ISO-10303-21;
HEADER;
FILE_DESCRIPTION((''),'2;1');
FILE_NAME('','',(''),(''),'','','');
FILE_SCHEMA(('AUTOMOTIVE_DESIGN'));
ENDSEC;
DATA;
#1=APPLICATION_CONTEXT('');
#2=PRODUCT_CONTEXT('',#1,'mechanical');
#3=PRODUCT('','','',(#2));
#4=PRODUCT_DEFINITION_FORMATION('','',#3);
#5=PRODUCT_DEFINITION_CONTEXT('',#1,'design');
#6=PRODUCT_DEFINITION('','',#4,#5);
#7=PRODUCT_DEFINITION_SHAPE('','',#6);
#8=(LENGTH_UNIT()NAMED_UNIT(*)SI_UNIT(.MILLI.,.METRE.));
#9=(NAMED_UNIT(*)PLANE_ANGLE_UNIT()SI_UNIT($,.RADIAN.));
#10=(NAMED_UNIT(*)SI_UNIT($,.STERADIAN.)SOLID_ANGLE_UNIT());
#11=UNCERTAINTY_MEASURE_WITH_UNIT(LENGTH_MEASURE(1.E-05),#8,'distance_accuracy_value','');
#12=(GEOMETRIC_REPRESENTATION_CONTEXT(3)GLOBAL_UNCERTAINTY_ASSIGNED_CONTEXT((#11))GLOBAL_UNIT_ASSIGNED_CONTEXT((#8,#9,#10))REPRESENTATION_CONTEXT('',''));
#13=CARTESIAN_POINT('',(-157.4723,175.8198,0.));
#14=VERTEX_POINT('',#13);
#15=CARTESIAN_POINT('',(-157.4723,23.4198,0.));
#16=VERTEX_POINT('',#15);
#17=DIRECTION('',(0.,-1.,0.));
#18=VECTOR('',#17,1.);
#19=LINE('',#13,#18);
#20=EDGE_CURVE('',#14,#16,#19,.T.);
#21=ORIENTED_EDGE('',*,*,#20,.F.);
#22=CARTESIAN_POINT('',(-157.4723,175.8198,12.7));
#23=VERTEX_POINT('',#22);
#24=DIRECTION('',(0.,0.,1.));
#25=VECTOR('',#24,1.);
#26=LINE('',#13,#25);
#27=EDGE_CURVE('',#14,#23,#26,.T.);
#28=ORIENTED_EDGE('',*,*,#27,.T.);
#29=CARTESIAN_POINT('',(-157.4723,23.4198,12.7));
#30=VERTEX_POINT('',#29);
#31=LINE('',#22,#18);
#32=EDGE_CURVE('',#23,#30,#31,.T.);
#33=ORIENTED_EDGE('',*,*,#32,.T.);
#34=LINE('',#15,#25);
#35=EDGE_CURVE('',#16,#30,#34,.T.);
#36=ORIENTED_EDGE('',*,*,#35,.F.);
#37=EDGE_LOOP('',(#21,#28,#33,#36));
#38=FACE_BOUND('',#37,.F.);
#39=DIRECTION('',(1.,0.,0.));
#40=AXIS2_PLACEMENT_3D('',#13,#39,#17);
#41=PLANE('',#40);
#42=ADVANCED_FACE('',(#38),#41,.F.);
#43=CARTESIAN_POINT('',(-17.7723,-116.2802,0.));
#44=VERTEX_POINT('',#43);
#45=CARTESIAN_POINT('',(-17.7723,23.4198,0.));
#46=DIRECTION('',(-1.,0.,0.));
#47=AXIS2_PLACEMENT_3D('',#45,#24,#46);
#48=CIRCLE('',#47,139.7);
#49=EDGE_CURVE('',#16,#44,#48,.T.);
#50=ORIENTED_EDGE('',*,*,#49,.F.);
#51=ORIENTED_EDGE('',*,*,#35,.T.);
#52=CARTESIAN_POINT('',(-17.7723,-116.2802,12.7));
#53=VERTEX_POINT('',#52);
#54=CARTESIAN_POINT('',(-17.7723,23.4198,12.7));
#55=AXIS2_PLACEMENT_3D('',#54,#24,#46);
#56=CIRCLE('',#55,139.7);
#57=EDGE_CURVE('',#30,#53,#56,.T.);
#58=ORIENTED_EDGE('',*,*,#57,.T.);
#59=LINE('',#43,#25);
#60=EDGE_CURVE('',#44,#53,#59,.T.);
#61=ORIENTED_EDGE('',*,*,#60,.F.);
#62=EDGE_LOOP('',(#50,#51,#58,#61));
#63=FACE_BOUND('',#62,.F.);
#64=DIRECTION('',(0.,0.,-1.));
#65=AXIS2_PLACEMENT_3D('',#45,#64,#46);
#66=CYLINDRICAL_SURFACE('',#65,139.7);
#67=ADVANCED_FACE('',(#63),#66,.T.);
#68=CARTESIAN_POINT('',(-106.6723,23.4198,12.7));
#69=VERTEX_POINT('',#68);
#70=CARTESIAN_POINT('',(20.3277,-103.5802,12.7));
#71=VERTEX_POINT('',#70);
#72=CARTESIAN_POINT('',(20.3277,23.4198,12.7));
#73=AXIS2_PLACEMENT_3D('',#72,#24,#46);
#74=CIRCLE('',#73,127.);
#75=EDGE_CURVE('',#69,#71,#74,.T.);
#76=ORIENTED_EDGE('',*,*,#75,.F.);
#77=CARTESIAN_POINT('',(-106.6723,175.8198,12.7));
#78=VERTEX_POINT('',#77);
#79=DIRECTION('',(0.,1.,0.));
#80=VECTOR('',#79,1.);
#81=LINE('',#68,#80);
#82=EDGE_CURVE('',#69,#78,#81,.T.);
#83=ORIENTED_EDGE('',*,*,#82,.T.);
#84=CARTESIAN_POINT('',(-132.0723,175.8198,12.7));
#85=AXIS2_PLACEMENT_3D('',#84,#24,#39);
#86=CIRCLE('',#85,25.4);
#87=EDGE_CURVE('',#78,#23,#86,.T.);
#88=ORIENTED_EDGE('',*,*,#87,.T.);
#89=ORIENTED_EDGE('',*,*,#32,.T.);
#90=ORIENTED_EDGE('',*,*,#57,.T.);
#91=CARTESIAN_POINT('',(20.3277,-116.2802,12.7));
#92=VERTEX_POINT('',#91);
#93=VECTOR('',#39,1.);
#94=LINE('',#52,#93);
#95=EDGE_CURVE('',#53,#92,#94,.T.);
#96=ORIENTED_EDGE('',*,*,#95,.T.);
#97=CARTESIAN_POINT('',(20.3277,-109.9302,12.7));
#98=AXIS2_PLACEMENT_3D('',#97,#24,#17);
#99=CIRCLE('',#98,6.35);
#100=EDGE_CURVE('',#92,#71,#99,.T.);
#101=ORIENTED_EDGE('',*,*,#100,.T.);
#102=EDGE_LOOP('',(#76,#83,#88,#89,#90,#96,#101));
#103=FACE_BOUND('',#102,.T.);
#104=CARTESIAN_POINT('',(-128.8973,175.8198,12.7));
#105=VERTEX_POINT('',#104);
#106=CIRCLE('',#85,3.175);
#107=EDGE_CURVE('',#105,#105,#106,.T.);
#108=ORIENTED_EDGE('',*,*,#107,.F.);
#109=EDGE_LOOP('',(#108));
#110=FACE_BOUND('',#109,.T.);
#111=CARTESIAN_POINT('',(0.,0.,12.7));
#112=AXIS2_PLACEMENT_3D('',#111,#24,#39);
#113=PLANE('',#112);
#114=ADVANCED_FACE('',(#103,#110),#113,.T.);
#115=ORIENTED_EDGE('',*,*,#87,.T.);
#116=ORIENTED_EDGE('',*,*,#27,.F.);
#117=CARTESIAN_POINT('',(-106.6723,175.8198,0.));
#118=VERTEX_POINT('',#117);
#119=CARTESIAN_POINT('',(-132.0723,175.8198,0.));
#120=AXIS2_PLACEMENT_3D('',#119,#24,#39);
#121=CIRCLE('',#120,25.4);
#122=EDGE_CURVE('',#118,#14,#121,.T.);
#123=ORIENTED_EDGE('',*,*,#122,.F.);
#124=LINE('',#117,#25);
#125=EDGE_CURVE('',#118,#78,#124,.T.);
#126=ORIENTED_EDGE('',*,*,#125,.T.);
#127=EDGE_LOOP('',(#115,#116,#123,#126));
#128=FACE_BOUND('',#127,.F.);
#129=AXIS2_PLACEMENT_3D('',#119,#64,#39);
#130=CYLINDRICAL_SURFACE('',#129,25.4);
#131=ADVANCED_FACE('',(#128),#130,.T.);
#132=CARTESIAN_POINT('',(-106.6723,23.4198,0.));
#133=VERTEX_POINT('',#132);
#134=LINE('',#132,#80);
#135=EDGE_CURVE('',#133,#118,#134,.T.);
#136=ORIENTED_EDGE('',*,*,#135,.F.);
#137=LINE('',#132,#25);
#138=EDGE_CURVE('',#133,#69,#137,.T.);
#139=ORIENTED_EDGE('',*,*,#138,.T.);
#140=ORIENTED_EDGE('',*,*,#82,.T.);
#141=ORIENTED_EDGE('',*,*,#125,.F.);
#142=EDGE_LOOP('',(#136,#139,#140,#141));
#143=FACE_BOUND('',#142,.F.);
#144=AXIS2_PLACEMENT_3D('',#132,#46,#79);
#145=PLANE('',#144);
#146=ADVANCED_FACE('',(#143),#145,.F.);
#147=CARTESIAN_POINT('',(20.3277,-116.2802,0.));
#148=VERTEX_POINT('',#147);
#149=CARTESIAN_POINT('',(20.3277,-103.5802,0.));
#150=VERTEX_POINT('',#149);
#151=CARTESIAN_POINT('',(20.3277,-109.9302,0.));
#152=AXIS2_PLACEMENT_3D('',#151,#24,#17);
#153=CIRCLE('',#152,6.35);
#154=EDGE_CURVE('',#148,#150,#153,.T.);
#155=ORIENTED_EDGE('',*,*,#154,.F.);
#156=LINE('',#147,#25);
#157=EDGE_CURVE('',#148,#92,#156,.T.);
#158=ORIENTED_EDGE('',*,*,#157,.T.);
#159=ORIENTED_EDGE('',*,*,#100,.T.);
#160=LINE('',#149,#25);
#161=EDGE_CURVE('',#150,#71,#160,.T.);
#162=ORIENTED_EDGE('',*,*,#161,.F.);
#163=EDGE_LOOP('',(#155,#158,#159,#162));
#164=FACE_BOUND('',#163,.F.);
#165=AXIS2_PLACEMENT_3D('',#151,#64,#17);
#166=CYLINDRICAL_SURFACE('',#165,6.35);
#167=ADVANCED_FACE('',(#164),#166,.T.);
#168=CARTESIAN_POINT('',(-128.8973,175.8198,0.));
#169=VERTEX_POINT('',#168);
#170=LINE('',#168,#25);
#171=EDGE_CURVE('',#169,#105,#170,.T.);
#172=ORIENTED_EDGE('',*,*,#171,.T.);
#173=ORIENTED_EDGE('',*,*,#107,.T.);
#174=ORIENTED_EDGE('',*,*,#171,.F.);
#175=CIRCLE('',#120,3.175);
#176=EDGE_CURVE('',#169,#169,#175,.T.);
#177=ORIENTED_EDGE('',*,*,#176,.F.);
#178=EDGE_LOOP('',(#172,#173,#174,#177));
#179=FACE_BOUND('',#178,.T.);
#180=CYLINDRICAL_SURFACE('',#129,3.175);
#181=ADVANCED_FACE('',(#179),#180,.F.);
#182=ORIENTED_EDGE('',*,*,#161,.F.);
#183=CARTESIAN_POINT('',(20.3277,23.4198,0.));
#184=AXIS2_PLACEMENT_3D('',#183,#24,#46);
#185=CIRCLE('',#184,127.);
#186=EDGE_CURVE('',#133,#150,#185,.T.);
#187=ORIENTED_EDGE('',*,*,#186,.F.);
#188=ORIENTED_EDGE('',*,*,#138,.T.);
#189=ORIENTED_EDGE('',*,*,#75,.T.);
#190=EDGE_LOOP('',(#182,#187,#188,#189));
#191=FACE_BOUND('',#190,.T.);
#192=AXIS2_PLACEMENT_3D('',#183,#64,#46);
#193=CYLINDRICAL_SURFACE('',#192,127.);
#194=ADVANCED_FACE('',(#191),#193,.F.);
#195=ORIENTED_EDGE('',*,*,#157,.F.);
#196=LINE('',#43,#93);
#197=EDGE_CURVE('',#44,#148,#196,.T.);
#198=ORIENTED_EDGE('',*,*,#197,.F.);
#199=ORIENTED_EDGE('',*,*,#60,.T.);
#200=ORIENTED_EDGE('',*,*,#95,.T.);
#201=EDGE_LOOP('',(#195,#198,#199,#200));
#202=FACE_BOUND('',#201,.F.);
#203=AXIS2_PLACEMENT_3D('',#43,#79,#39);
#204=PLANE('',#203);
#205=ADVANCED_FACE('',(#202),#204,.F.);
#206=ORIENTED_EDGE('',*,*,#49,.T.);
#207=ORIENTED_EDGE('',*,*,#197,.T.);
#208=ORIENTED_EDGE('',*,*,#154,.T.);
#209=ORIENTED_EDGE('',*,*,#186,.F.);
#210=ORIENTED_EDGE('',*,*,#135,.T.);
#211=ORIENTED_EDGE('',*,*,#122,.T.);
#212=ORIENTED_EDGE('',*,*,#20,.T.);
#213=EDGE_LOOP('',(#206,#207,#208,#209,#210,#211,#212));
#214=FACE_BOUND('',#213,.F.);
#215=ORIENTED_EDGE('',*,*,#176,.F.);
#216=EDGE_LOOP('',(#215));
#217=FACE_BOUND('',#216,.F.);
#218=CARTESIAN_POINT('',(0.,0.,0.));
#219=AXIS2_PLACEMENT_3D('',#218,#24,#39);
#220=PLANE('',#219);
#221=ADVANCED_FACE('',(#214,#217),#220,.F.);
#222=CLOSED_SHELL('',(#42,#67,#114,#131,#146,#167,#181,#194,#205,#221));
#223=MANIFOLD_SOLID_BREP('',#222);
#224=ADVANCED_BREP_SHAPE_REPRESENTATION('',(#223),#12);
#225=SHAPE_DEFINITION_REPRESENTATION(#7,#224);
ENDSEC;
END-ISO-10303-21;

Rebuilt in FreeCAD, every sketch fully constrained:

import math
import FreeCAD as App
import Part
import Sketcher

V = App.Vector
Q = App.Units.Quantity

doc = App.newDocument("Part")
body = doc.addObject("PartDesign::Body", "Body")

# Sketch on XY plane
sketch1 = doc.addObject("Sketcher::SketchObject", "Sketch")
body.addObject(sketch1)
sketch1.AttachmentSupport = (doc.XY_Plane, [""])
sketch1.MapMode = "FlatFace"
sketch1.addGeometry([
    Part.LineSegment(V(-106.7, 23.4, 0), V(-106.7, 175.8, 0)),  # 0
    Part.ArcOfCircle(Part.Circle(V(-132.1, 175.8, 0), V(0, 0, 1), 25.4), math.radians(0), math.radians(180)),  # 1
    Part.LineSegment(V(-157.5, 175.8, 0), V(-157.5, 23.4, 0)),  # 2
    Part.ArcOfCircle(Part.Circle(V(-17.8, 23.4, 0), V(0, 0, 1), 139.7), math.radians(180), math.radians(270)),  # 3
    Part.LineSegment(V(-17.8, -116.3, 0), V(20.3, -116.3, 0)),  # 4
    Part.ArcOfCircle(Part.Circle(V(20.3, -109.9, 0), V(0, 0, 1), 6.3), math.radians(-90), math.radians(90)),  # 5
    Part.ArcOfCircle(Part.Circle(V(20.3, 23.4, 0), V(0, 0, 1), 127), math.radians(180), math.radians(270)),  # 6
    Part.Circle(V(-132.1, 175.8, 0), V(0, 0, 1), 3.2),  # 7
], False)
sketch1.addConstraint([
    Sketcher.Constraint("Tangent", 0, 2, 1, 1),
    Sketcher.Constraint("Tangent", 1, 2, 2, 1),
    Sketcher.Constraint("Tangent", 2, 2, 3, 1),
    Sketcher.Constraint("Tangent", 3, 2, 4, 1),
    Sketcher.Constraint("Tangent", 4, 2, 5, 1),
    Sketcher.Constraint("Tangent", 5, 2, 6, 2),
    Sketcher.Constraint("Tangent", 6, 1, 0, 1),
    Sketcher.Constraint("Vertical", 0),
    Sketcher.Constraint("Vertical", 2),
    Sketcher.Constraint("Horizontal", 4),
    Sketcher.Constraint("Coincident", 7, 3, 1, 3),
    Sketcher.Constraint("Horizontal", 3, 3, 6, 3),
    Sketcher.Constraint("Vertical", 5, 3, 6, 3),
    Sketcher.Constraint("Radius", 1, Q("1 in")),
    Sketcher.Constraint("Radius", 6, Q("5 in")),
    Sketcher.Constraint("Radius", 3, Q("5.5 in")),
    Sketcher.Constraint("Diameter", 7, Q("0.25 in")),
    Sketcher.Constraint("DistanceY", 0, 1, 0, 2, Q("6 in")),
    Sketcher.Constraint("DistanceX", 1, 3, -1, 1, Q("5.1997 in")),
    Sketcher.Constraint("DistanceY", -1, 1, 1, 3, 175.8198),
])
pad1 = doc.addObject("PartDesign::Pad", "Pad")
body.addObject(pad1)
pad1.Profile = sketch1
pad1.Length = Q("0.5 in")

doc.recompute()
